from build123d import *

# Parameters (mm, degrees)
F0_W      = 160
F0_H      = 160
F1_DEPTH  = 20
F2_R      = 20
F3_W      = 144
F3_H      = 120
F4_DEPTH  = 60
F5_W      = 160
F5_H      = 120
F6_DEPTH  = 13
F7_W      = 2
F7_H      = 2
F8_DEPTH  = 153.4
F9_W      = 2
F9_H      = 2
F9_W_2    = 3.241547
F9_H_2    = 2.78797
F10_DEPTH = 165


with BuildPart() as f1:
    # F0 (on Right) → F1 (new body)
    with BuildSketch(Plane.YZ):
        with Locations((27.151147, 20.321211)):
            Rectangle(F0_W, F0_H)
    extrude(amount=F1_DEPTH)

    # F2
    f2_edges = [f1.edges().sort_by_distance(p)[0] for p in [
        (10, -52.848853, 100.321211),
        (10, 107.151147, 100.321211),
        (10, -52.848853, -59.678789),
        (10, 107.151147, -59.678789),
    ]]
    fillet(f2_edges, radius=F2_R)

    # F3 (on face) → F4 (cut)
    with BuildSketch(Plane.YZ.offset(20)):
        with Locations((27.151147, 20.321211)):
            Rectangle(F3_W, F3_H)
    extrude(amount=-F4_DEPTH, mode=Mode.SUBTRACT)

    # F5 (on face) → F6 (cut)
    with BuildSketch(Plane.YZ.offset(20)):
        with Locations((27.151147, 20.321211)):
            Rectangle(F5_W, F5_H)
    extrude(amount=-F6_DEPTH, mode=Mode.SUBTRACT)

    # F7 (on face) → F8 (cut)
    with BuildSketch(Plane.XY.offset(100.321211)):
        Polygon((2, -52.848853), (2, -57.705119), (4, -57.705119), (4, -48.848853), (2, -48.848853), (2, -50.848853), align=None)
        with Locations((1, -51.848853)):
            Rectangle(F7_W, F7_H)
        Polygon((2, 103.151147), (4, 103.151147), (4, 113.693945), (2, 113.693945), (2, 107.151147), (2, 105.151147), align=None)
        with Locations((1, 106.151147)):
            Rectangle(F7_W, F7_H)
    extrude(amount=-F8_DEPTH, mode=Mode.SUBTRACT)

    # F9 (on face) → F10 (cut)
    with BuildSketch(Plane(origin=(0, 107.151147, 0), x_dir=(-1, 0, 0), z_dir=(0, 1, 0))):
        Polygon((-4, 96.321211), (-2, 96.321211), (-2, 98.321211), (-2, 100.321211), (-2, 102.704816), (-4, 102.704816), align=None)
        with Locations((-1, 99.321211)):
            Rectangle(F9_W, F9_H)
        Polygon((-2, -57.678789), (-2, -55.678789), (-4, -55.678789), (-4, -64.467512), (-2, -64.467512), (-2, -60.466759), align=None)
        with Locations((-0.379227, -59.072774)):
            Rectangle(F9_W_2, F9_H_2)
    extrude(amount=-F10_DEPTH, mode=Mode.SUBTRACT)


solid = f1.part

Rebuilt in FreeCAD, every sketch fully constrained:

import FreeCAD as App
import Part
import Sketcher
from FreeCAD import Vector


def edges_at(feature, points):
    """Names of the edges that pass closest to the given points."""
    edges = feature.Shape.Edges
    near = lambda p: min(range(len(edges)), key=lambda i: edges[i].distToShape(Part.Vertex(*p))[0])
    return sorted({f"Edge{near(p) + 1}" for p in points})


def add_polygon(sketch, points):
    """Adds a closed chain of lines whose ends are joined by coincident constraints."""
    first, n = sketch.GeometryCount, len(points)
    for a, b in zip(points, points[1:] + points[:1]):
        sketch.addGeometry(Part.LineSegment(App.Vector(*a, 0), App.Vector(*b, 0)), False)
    for i in range(n):
        sketch.addConstraint(Sketcher.Constraint("Coincident", first + i, 2, first + (i + 1) % n, 1))

doc = App.newDocument("Part")
params = doc.addObject("Spreadsheet::Sheet", "Params")
for row, (alias, value) in enumerate([
    ("sketch1_width", "160 mm"),
    ("pad1_length", "20 mm"),
    ("fillet_radius", "20 mm"),
    ("sketch2_width", "144 mm"),
    ("sketch2_height", "120 mm"),
    ("pocket1_length", "60 mm"),
    ("sketch3_width", "160 mm"),
    ("sketch3_height", "120 mm"),
    ("pocket2_length", "13 mm"),
    ("sketch4_width", "2 mm"),
    ("pocket3_length", "153.4 mm"),
    ("sketch5_width", "2 mm"),
    ("pocket4_length", "165 mm"),
], start=1):
    params.set(f"A{row}", alias)
    params.set(f"B{row}", "=" + value)
    params.setAlias(f"B{row}", alias)

body = doc.addObject("PartDesign::Body", "Body")

sketch1 = body.newObject("Sketcher::SketchObject", "Sketch")
sketch1.AttachmentSupport = (doc.getObject("YZ_Plane"), [""])
sketch1.MapMode = "FlatFace"
add_polygon(sketch1, [(-53, 100), (-53, -60), (107, -60), (107, 100)])
sketch1.addConstraint([
    Sketcher.Constraint("Vertical", 0),
    Sketcher.Constraint("Horizontal", 1),
    Sketcher.Constraint("Vertical", 2),
    Sketcher.Constraint("Horizontal", 3),
    Sketcher.Constraint("Equal", 3, 0),
    Sketcher.Constraint("DistanceX", 1, 1, 1, 2, 160.0),
    Sketcher.Constraint("DistanceY", 0, 2, -1, 1, 59.678789),
    Sketcher.Constraint("DistanceX", 0, 2, -1, 1, 52.848853),
])
sketch1.setExpression("Constraints[9]", "Params.sketch1_width")
pad1 = body.newObject("PartDesign::Pad", "Pad")
pad1.Profile = sketch1
pad1.setExpression("Length", "Params.pad1_length")
doc.recompute()

fillet = body.newObject("PartDesign::Fillet", "Fillet")
fillet.Base = (pad1, edges_at(pad1, [
    (10, -52.849, 100.321),
    (10, 107.151, 100.321),
    (10, -52.849, -59.679),
    (10, 107.151, -59.679),
]))
fillet.setExpression("Radius", "Params.fillet_radius")

sketch2 = body.newObject("Sketcher::SketchObject", "Sketch001")
sketch2.AttachmentSupport = (doc.getObject("YZ_Plane"), [""])
sketch2.MapMode = "FlatFace"
sketch2.AttachmentOffset = App.Placement(Vector(0, 0, 20), App.Rotation())
add_polygon(sketch2, [(-45, 80), (-45, -40), (99, -40), (99, 80)])
sketch2.addConstraint([
    Sketcher.Constraint("Vertical", 0),
    Sketcher.Constraint("Horizontal", 1),
    Sketcher.Constraint("Vertical", 2),
    Sketcher.Constraint("Horizontal", 3),
    Sketcher.Constraint("DistanceX", 1, 1, 1, 2, 144.0),
    Sketcher.Constraint("DistanceY", 0, 2, 0, 1, 120.0),
    Sketcher.Constraint("DistanceY", 0, 2, -1, 1, 39.678789),
    Sketcher.Constraint("DistanceX", 0, 2, -1, 1, 44.848853),
])
sketch2.setExpression("Constraints[8]", "Params.sketch2_width")
sketch2.setExpression("Constraints[9]", "Params.sketch2_height")
pocket1 = body.newObject("PartDesign::Pocket", "Pocket")
pocket1.Profile = sketch2
pocket1.setExpression("Length", "Params.pocket1_length")

sketch3 = body.newObject("Sketcher::SketchObject", "Sketch002")
sketch3.AttachmentSupport = (doc.getObject("YZ_Plane"), [""])
sketch3.MapMode = "FlatFace"
sketch3.AttachmentOffset = App.Placement(Vector(0, 0, 20), App.Rotation())
add_polygon(sketch3, [(-53, 80), (-53, -40), (107, -40), (107, 80)])
sketch3.addConstraint([
    Sketcher.Constraint("Vertical", 0),
    Sketcher.Constraint("Horizontal", 1),
    Sketcher.Constraint("Vertical", 2),
    Sketcher.Constraint("Horizontal", 3),
    Sketcher.Constraint("DistanceX", 1, 1, 1, 2, 160.0),
    Sketcher.Constraint("DistanceY", 0, 2, 0, 1, 120.0),
    Sketcher.Constraint("DistanceY", 0, 2, -1, 1, 39.678789),
    Sketcher.Constraint("DistanceX", 0, 2, -1, 1, 52.848853),
])
sketch3.setExpression("Constraints[8]", "Params.sketch3_width")
sketch3.setExpression("Constraints[9]", "Params.sketch3_height")
pocket2 = body.newObject("PartDesign::Pocket", "Pocket001")
pocket2.Profile = sketch3
pocket2.setExpression("Length", "Params.pocket2_length")

sketch4 = body.newObject("Sketcher::SketchObject", "Sketch003")
sketch4.AttachmentSupport = (doc.getObject("XY_Plane"), [""])
sketch4.MapMode = "FlatFace"
sketch4.AttachmentOffset = App.Placement(Vector(0, 0, 100.321211), App.Rotation())
add_polygon(sketch4, [(2, -57.7), (4, -57.7), (4, -48.8), (2, -48.8), (2, -50.8), (0, -50.8), (0, -52.8), (2, -52.8)])
add_polygon(sketch4, [(2, 103.2), (4, 103.2), (4, 113.7), (2, 113.7), (2, 107.2), (0, 107.2), (0, 105.2), (2, 105.2)])
sketch4.addConstraint([
    Sketcher.Constraint("Horizontal", 0),
    Sketcher.Constraint("Vertical", 1),
    Sketcher.Constraint("Horizontal", 2),
    Sketcher.Constraint("Vertical", 3),
    Sketcher.Constraint("Horizontal", 4),
    Sketcher.Constraint("Vertical", 5),
    Sketcher.Constraint("Horizontal", 6),
    Sketcher.Constraint("Vertical", 7),
    Sketcher.Constraint("Horizontal", 8),
    Sketcher.Constraint("Vertical", 9),
    Sketcher.Constraint("Horizontal", 10),
    Sketcher.Constraint("Vertical", 11),
    Sketcher.Constraint("Horizontal", 12),
    Sketcher.Constraint("Vertical", 13),
    Sketcher.Constraint("Horizontal", 14),
    Sketcher.Constraint("Vertical", 15),
    Sketcher.Constraint("PointOnObject", 4, 2, -2),
    Sketcher.Constraint("PointOnObject", 12, 2, -2),
    Sketcher.Constraint("Vertical", 3, 2, 6, 2),
    Sketcher.Constraint("Vertical", 1, 2, 8, 2),
    Sketcher.Constraint("Vertical", 7, 2, 10, 2),
    Sketcher.Constraint("Vertical", 11, 2, 14, 2),
    Sketcher.Constraint("Equal", 2, 4),
    Sketcher.Constraint("Equal", 14, 3),
    Sketcher.Constraint("Equal", 3, 5),
    Sketcher.Constraint("Equal", 5, 13),
    Sketcher.Constraint("Equal", 13, 15),
    Sketcher.Constraint("DistanceX", 0, 1, 0, 2, 2.0),
    Sketcher.Constraint("DistanceY", 1, 2, 8, 2, 152.0),
    Sketcher.Constraint("DistanceY", 9, 1, 9, 2, 10.542798),
    Sketcher.Constraint("DistanceY", 1, 1, 1, 2, 8.856266),
    Sketcher.Constraint("DistanceY", 0, 2, -1, 1, 57.705119),
])
sketch4.setExpression("Constraints[43]", "Params.sketch4_width")
pocket3 = body.newObject("PartDesign::Pocket", "Pocket002")
pocket3.Profile = sketch4
pocket3.setExpression("Length", "Params.pocket3_length")

sketch5 = body.newObject("Sketcher::SketchObject", "Sketch004")
sketch5.AttachmentSupport = (doc.getObject("XZ_Plane"), [""])
sketch5.MapMode = "FlatFace"
sketch5.AttachmentOffset = App.Placement(Vector(0, 0, -107.151147), App.Rotation())
add_polygon(sketch5, [(4, 96.3), (2, 96.3), (2, 98.3), (0, 98.3), (0, 100.3), (2, 100.3), (2, 102.7), (4, 102.7)])
add_polygon(sketch5, [(2, -57.7), (2, -55.7), (4, -55.7), (4, -64.5), (2, -64.5), (2, -60.5), (-1.2, -60.5), (-1.2, -57.7)])
sketch5.addConstraint([
    Sketcher.Constraint("Horizontal", 0),
    Sketcher.Constraint("Vertical", 1),
    Sketcher.Constraint("Horizontal", 2),
    Sketcher.Constraint("Vertical", 3),
    Sketcher.Constraint("Horizontal", 4),
    Sketcher.Constraint("Vertical", 5),
    Sketcher.Constraint("Horizontal", 6),
    Sketcher.Constraint("Vertical", 7),
    Sketcher.Constraint("Vertical", 8),
    Sketcher.Constraint("Horizontal", 9),
    Sketcher.Constraint("Vertical", 10),
    Sketcher.Constraint("Horizontal", 11),
    Sketcher.Constraint("Vertical", 12),
    Sketcher.Constraint("Horizontal", 13),
    Sketcher.Constraint("Vertical", 14),
    Sketcher.Constraint("Horizontal", 15),
    Sketcher.Constraint("PointOnObject", 2, 2, -2),
    Sketcher.Constraint("Vertical", 1, 2, 4, 2),
    Sketcher.Constraint("Vertical", 5, 2, 8, 2),
    Sketcher.Constraint("Vertical", 7, 2, 9, 2),
    Sketcher.Constraint("Vertical", 8, 2, 11, 2),
    Sketcher.Constraint("Equal", 0, 2),
    Sketcher.Constraint("Equal", 11, 1),
    Sketcher.Constraint("Equal", 1, 3),
    Sketcher.Constraint("Equal", 3, 8),
    Sketcher.Constraint("DistanceX", 0, 2, 0, 1, 2.0),
    Sketcher.Constraint("DistanceY", 8, 2, 0, 2, 152.0),
    Sketcher.Constraint("DistanceY", 14, 1, 14, 2, 2.78797),
    Sketcher.Constraint("DistanceX", 13, 2, 13, 1, 3.241547),
    Sketcher.Constraint("DistanceY", 5, 1, 5, 2, 2.383605),
    Sketcher.Constraint("DistanceY", 10, 2, 10, 1, 8.788723),
    Sketcher.Constraint("DistanceY", -1, 1, 0, 2, 96.321211),
])
sketch5.setExpression("Constraints[41]", "Params.sketch5_width")
pocket4 = body.newObject("PartDesign::Pocket", "Pocket003")
pocket4.Profile = sketch5
pocket4.setExpression("Length", "Params.pocket4_length")
pocket4.Reversed = True

doc.recompute()
